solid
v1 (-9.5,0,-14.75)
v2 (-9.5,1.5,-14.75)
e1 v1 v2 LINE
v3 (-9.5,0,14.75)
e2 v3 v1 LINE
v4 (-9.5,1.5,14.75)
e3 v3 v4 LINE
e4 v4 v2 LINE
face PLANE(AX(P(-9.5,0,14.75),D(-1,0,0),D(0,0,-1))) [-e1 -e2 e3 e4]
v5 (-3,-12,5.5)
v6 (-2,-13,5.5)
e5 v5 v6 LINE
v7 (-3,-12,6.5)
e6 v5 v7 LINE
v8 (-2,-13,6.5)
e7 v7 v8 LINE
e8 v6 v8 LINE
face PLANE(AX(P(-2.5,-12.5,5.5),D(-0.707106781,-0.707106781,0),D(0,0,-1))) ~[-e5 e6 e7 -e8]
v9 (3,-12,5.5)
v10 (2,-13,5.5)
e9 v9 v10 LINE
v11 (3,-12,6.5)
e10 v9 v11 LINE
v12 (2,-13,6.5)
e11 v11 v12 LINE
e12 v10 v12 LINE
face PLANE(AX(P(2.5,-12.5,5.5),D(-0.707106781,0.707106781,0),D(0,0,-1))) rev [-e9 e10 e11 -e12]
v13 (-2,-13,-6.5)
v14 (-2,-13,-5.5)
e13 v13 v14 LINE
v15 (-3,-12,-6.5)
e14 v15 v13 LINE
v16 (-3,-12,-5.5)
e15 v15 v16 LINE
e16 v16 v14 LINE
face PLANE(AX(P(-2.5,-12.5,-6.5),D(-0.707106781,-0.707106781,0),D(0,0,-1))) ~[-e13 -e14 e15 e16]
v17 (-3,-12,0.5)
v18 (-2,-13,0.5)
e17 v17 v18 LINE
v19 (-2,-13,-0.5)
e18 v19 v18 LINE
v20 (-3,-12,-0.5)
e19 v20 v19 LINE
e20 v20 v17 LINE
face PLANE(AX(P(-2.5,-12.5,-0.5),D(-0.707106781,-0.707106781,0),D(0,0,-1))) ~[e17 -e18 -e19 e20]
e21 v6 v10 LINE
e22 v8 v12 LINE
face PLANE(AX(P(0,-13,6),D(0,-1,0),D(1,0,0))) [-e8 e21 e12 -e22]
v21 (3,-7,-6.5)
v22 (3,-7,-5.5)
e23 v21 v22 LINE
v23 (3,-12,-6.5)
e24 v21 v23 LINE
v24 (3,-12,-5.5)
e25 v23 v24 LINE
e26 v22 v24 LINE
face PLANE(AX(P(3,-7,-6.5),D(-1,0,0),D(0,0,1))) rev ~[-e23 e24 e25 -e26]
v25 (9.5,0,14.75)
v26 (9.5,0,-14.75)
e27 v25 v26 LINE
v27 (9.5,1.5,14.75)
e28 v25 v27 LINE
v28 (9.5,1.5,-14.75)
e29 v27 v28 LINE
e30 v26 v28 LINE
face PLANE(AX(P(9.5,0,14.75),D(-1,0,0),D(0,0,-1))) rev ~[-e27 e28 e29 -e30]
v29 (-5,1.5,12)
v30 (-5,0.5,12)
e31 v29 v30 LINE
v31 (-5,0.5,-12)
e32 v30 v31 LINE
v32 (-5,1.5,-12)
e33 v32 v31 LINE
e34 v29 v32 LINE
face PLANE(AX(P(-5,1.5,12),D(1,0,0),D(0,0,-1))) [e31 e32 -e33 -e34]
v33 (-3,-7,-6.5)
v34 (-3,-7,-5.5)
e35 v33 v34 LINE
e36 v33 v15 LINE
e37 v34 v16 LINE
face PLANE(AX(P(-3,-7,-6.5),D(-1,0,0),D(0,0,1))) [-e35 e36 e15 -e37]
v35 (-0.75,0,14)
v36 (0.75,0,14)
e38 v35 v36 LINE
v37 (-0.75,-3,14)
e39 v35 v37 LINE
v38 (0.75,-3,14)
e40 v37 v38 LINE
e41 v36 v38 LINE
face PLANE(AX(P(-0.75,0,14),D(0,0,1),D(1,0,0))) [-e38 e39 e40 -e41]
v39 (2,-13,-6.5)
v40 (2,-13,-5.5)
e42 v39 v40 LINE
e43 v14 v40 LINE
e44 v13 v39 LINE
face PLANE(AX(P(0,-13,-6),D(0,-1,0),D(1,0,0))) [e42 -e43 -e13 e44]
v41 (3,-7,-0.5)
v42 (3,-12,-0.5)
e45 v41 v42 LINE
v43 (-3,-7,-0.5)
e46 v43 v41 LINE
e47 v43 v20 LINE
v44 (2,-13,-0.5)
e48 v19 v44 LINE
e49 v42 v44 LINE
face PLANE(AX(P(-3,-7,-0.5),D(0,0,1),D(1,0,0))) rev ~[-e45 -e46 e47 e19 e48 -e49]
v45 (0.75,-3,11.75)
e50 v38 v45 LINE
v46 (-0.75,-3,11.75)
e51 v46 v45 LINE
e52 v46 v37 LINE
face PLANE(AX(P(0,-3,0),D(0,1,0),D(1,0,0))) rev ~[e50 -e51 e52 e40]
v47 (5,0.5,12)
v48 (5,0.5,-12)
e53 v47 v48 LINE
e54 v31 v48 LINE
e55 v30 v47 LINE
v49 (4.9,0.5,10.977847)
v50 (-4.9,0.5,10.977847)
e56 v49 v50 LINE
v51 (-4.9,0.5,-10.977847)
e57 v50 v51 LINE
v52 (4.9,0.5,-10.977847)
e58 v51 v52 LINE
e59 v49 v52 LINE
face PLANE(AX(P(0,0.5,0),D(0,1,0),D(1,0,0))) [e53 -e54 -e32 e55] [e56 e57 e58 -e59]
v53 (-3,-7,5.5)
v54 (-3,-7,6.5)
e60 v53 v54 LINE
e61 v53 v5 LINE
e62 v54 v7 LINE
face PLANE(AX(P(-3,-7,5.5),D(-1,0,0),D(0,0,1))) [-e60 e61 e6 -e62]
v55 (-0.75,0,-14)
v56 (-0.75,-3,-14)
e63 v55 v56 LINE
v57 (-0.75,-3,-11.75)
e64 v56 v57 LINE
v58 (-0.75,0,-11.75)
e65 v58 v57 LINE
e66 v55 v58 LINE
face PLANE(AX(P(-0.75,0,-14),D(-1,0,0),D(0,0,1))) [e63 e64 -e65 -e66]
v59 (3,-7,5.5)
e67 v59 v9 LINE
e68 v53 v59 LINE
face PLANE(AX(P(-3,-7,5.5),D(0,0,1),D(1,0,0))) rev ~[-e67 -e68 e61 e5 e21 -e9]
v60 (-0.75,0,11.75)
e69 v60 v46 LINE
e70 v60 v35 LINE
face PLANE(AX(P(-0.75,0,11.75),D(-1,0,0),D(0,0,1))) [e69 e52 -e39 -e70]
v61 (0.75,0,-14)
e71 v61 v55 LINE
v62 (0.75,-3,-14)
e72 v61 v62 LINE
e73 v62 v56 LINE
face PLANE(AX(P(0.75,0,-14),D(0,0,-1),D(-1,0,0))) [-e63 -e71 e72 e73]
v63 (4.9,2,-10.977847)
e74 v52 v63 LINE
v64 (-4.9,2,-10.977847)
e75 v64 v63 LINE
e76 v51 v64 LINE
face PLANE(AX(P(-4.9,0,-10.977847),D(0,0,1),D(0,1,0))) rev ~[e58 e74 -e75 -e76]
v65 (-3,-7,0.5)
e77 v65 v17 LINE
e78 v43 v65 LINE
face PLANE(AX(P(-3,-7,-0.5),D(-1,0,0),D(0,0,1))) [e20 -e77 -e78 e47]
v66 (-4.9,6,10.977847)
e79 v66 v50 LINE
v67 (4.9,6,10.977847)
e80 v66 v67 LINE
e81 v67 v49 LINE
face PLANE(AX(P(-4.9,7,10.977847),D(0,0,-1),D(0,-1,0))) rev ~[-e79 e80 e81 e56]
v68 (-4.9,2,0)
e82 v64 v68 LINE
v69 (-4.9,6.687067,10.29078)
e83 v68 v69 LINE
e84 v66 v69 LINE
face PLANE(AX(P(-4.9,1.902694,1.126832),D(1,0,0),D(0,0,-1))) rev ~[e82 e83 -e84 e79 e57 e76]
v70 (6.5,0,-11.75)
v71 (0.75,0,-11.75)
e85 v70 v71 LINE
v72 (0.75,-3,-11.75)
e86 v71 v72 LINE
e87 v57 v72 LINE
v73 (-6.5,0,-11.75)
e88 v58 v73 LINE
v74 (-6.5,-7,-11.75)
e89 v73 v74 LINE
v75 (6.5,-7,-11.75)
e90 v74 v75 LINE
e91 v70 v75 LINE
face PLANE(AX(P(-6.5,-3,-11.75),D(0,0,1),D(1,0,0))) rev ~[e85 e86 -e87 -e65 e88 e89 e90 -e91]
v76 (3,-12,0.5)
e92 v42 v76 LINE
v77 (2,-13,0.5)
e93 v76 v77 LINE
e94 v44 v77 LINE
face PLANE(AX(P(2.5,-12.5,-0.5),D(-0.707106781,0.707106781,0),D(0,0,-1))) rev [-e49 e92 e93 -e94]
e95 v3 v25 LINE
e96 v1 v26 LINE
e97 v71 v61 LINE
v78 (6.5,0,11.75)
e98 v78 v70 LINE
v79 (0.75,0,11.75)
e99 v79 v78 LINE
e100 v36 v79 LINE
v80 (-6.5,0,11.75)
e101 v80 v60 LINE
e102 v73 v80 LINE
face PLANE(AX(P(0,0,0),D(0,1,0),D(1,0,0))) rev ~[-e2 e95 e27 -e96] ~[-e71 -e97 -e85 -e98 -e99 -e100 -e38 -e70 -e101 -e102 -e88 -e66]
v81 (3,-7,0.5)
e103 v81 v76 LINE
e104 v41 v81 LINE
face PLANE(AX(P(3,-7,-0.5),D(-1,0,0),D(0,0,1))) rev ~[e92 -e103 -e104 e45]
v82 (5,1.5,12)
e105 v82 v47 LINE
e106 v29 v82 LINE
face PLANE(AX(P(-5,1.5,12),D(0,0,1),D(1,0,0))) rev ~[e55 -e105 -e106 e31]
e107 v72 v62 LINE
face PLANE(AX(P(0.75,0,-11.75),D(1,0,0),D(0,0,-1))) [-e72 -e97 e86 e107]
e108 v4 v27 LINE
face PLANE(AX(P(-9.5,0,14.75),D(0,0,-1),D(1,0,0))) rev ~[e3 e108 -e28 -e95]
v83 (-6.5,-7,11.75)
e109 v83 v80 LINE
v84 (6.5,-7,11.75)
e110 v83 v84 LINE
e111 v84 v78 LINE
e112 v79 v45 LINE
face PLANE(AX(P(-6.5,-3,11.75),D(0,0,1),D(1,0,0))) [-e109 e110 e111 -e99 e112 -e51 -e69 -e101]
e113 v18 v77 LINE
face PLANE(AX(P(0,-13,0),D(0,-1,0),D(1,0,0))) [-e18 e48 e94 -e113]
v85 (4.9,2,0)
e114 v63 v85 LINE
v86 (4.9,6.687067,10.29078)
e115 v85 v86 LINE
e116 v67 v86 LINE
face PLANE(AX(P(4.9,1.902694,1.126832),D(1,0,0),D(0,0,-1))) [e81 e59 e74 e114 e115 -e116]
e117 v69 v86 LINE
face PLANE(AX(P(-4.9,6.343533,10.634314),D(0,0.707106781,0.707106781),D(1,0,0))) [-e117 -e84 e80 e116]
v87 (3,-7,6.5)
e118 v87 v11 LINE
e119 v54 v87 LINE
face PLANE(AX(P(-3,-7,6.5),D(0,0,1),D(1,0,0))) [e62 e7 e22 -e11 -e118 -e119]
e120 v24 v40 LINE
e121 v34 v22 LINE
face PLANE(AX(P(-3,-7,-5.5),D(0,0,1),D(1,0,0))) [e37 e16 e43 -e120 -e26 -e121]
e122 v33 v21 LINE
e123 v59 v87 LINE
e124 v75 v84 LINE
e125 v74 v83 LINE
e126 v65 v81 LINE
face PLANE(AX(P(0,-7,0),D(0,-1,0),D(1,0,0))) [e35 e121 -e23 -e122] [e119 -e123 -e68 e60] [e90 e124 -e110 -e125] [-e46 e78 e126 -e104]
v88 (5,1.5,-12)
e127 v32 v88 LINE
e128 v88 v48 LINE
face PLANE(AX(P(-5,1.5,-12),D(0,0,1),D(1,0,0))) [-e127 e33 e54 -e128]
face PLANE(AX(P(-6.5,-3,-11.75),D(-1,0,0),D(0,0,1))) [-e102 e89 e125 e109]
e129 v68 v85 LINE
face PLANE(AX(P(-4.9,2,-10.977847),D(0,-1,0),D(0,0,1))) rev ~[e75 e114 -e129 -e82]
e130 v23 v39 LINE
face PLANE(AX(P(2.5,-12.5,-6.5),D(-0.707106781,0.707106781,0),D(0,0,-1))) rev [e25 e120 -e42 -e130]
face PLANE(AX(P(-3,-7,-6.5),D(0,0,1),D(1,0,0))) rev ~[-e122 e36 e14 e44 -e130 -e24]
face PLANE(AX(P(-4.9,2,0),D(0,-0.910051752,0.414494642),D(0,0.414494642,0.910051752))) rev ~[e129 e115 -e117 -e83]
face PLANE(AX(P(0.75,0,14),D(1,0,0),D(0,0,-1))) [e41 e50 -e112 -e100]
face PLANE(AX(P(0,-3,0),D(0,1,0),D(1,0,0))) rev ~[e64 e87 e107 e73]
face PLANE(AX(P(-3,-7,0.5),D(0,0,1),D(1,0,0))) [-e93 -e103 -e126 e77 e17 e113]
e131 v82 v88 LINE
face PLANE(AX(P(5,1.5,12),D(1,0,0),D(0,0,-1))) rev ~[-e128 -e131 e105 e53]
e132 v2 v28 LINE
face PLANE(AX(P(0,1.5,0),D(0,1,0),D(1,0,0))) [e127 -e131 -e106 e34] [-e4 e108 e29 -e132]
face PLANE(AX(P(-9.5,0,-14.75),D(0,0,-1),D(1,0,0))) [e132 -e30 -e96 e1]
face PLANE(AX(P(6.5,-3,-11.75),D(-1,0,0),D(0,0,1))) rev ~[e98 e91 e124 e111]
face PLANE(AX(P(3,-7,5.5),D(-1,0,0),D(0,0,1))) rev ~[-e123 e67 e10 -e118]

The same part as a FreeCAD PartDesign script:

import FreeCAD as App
import Part
import Sketcher
from FreeCAD import Vector


def edges_at(feature, points):
    """Names of the edges that pass closest to the given points."""
    edges = feature.Shape.Edges
    near = lambda p: min(range(len(edges)), key=lambda i: edges[i].distToShape(Part.Vertex(*p))[0])
    return sorted({f"Edge{near(p) + 1}" for p in points})


def add_polygon(sketch, points):
    """Adds a closed chain of lines whose ends are joined by coincident constraints."""
    first, n = sketch.GeometryCount, len(points)
    for a, b in zip(points, points[1:] + points[:1]):
        sketch.addGeometry(Part.LineSegment(App.Vector(*a, 0), App.Vector(*b, 0)), False)
    for i in range(n):
        sketch.addConstraint(Sketcher.Constraint("Coincident", first + i, 2, first + (i + 1) % n, 1))

doc = App.newDocument("Part")
params = doc.addObject("Spreadsheet::Sheet", "Params")
for row, (alias, value) in enumerate([
    ("sketch1_width", "1.5 mm"),
    ("sketch1_height", "23.5 mm"),
    ("pad1_length", "3 mm"),
    ("sketch2_width", "13 mm"),
    ("sketch2_height", "23.5 mm"),
    ("pad2_length", "4 mm"),
    ("sketch3_width", "6 mm"),
    ("sketch3_height", "1 mm"),
    ("pad3_length", "6 mm"),
    ("chamfer_size", "1 mm"),
    ("sketch4_width", "19 mm"),
    ("sketch4_height", "29.5 mm"),
    ("pad4_length", "1.5 mm"),
    ("sketch5_width", "10 mm"),
    ("sketch5_height", "24 mm"),
    ("pocket1_length", "1 mm"),
    ("sketch6_width", "2 mm"),
    ("sketch6_width2", "7 mm"),
    ("pad5_length", "4.9 mm"),
    ("pad5_length2", "4.9 mm"),
    ("chamfer2_size", "1 mm"),
    ("chamfer2_size2", "0.754975 mm"),
], start=1):
    params.set(f"A{row}", alias)
    params.set(f"B{row}", "=" + value)
    params.setAlias(f"B{row}", alias)

body = doc.addObject("PartDesign::Body", "Body")

# Sketch on XZ plane
sketch1 = body.newObject("Sketcher::SketchObject", "Sketch")
sketch1.AttachmentSupport = (doc.getObject("XZ_Plane"), [""])
sketch1.MapMode = "FlatFace"
add_polygon(sketch1, [(0.8, 11.8), (6.5, 11.8), (6.5, -11.8), (0.8, -11.8), (0.8, -14), (-0.8, -14), (-0.8, -11.8), (-6.5, -11.8), (-6.5, 11.8), (-0.8, 11.8), (-0.8, 14), (0.8, 14)])  # lines 0-11
sketch1.addConstraint(Sketcher.Constraint("Horizontal", 0))
sketch1.addConstraint(Sketcher.Constraint("Vertical", 1))
sketch1.addConstraint(Sketcher.Constraint("Horizontal", 2))
sketch1.addConstraint(Sketcher.Constraint("Vertical", 3))
sketch1.addConstraint(Sketcher.Constraint("Horizontal", 4))
sketch1.addConstraint(Sketcher.Constraint("Vertical", 5))
sketch1.addConstraint(Sketcher.Constraint("Horizontal", 6))
sketch1.addConstraint(Sketcher.Constraint("Vertical", 7))
sketch1.addConstraint(Sketcher.Constraint("Horizontal", 8))
sketch1.addConstraint(Sketcher.Constraint("Vertical", 9))
sketch1.addConstraint(Sketcher.Constraint("Horizontal", 10))
sketch1.addConstraint(Sketcher.Constraint("Vertical", 11))
sketch1.addConstraint(Sketcher.Constraint("Symmetric", 0, 2, 6, 2, -1, 1))
sketch1.addConstraint(Sketcher.Constraint("Symmetric", 2, 2, 8, 2, -1, 1))
sketch1.addConstraint(Sketcher.Constraint("Symmetric", 4, 2, 10, 2, -1, 1))
sketch1.addConstraint(Sketcher.Constraint("Symmetric", 2, 2, 5, 2, -2))
sketch1.addConstraint(Sketcher.Constraint("DistanceX", 4, 2, 4, 1, 1.5))
sketch1.addConstraint(Sketcher.Constraint("DistanceY", 1, 2, 1, 1, 23.5))
sketch1.addConstraint(Sketcher.Constraint("DistanceY", 3, 2, -1, 1, 14.0))
sketch1.addConstraint(Sketcher.Constraint("DistanceX", 6, 2, 1, 2, 13.0))
sketch1.setExpression("Constraints[28]", "Params.sketch1_width")
sketch1.setExpression("Constraints[29]", "Params.sketch1_height")
pad1 = body.newObject("PartDesign::Pad", "Pad")
pad1.Profile = sketch1
pad1.setExpression("Length", "Params.pad1_length")

# Sketch on XZ plane
sketch2 = body.newObject("Sketcher::SketchObject", "Sketch001")
sketch2.AttachmentSupport = (doc.getObject("XZ_Plane"), [""])
sketch2.MapMode = "FlatFace"
sketch2.AttachmentOffset = App.Placement(Vector(0, 0, 3), App.Rotation())
add_polygon(sketch2, [(-6, 12), (-6, -12), (6, -12), (6, 12)])  # lines 0-3
sketch2.addConstraint(Sketcher.Constraint("Vertical", 0))
sketch2.addConstraint(Sketcher.Constraint("Horizontal", 1))
sketch2.addConstraint(Sketcher.Constraint("Vertical", 2))
sketch2.addConstraint(Sketcher.Constraint("Horizontal", 3))
sketch2.addConstraint(Sketcher.Constraint("Symmetric", 0, 2, 2, 2, -1, 1))
sketch2.addConstraint(Sketcher.Constraint("DistanceX", 1, 1, 1, 2, 13.0))
sketch2.addConstraint(Sketcher.Constraint("DistanceY", 0, 2, 0, 1, 23.5))
sketch2.setExpression("Constraints[9]", "Params.sketch2_width")
sketch2.setExpression("Constraints[10]", "Params.sketch2_height")
pad2 = body.newObject("PartDesign::Pad", "Pad001")
pad2.Profile = sketch2
pad2.setExpression("Length", "Params.pad2_length")

# Sketch on XZ plane
sketch3 = body.newObject("Sketcher::SketchObject", "Sketch002")
sketch3.AttachmentSupport = (doc.getObject("XZ_Plane"), [""])
sketch3.MapMode = "FlatFace"
sketch3.AttachmentOffset = App.Placement(Vector(0, 0, 7), App.Rotation())
add_polygon(sketch3, [(-3, 0.5), (-3, -0.5), (3, -0.5), (3, 0.5)])  # lines 0-3
add_polygon(sketch3, [(-3, 6.5), (-3, 5.5), (3, 5.5), (3, 6.5)])  # lines 4-7
add_polygon(sketch3, [(-3, -5.5), (-3, -6.5), (3, -6.5), (3, -5.5)])  # lines 8-11
sketch3.addConstraint(Sketcher.Constraint("Vertical", 0))
sketch3.addConstraint(Sketcher.Constraint("Horizontal", 1))
sketch3.addConstraint(Sketcher.Constraint("Vertical", 2))
sketch3.addConstraint(Sketcher.Constraint("Horizontal", 3))
sketch3.addConstraint(Sketcher.Constraint("Vertical", 4))
sketch3.addConstraint(Sketcher.Constraint("Horizontal", 5))
sketch3.addConstraint(Sketcher.Constraint("Vertical", 6))
sketch3.addConstraint(Sketcher.Constraint("Horizontal", 7))
sketch3.addConstraint(Sketcher.Constraint("Vertical", 8))
sketch3.addConstraint(Sketcher.Constraint("Horizontal", 9))
sketch3.addConstraint(Sketcher.Constraint("Vertical", 10))
sketch3.addConstraint(Sketcher.Constraint("Horizontal", 11))
sketch3.addConstraint(Sketcher.Constraint("Symmetric", 0, 2, 2, 2, -1, 1))
sketch3.addConstraint(Sketcher.Constraint("Symmetric", 6, 2, 8, 2, -1, 1))
sketch3.addConstraint(Sketcher.Constraint("Symmetric", 4, 2, 10, 2, -1, 1))
sketch3.addConstraint(Sketcher.Constraint("Vertical", 3, 2, 4, 2))
sketch3.addConstraint(Sketcher.Constraint("Vertical", 2, 2, 5, 2))
sketch3.addConstraint(Sketcher.Constraint("Equal", 2, 4))
sketch3.addConstraint(Sketcher.Constraint("DistanceX", 1, 1, 1, 2, 6.0))
sketch3.addConstraint(Sketcher.Constraint("DistanceY", 0, 2, 0, 1, 1.0))
sketch3.addConstraint(Sketcher.Constraint("DistanceY", 3, 2, 4, 2, 5.0))
sketch3.setExpression("Constraints[30]", "Params.sketch3_width")
sketch3.setExpression("Constraints[31]", "Params.sketch3_height")
pad3 = body.newObject("PartDesign::Pad", "Pad002")
pad3.Profile = sketch3
pad3.setExpression("Length", "Params.pad3_length")
doc.recompute()

chamfer = body.newObject("PartDesign::Chamfer", "Chamfer")
chamfer.Base = (pad3, edges_at(pad3, [
    (-3, -13, 0),
    (3, -13, 0),
    (-3, -13, 6),
    (3, -13, 6),
    (3, -13, -6),
    (-3, -13, -6),
]))
chamfer.setExpression("Size", "Params.chamfer_size")

# Sketch on XZ plane
sketch4 = body.newObject("Sketcher::SketchObject", "Sketch003")
sketch4.AttachmentSupport = (doc.getObject("XZ_Plane"), [""])
sketch4.MapMode = "FlatFace"
add_polygon(sketch4, [(-10, -15), (-10, 15), (10, 15), (10, -15)])  # lines 0-3
sketch4.addConstraint(Sketcher.Constraint("Vertical", 0))
sketch4.addConstraint(Sketcher.Constraint("Horizontal", 1))
sketch4.addConstraint(Sketcher.Constraint("Vertical", 2))
sketch4.addConstraint(Sketcher.Constraint("Horizontal", 3))
sketch4.addConstraint(Sketcher.Constraint("Symmetric", 0, 2, 2, 2, -1, 1))
sketch4.addConstraint(Sketcher.Constraint("DistanceX", 1, 1, 1, 2, 19.0))
sketch4.addConstraint(Sketcher.Constraint("DistanceY", 0, 1, 0, 2, 29.5))
sketch4.setExpression("Constraints[9]", "Params.sketch4_width")
sketch4.setExpression("Constraints[10]", "Params.sketch4_height")
pad4 = body.newObject("PartDesign::Pad", "Pad003")
pad4.Profile = sketch4
pad4.setExpression("Length", "Params.pad4_length")
pad4.Reversed = True

# Sketch on XZ plane
sketch5 = body.newObject("Sketcher::SketchObject", "Sketch004")
sketch5.AttachmentSupport = (doc.getObject("XZ_Plane"), [""])
sketch5.MapMode = "FlatFace"
sketch5.AttachmentOffset = App.Placement(Vector(0, 0, -1.5), App.Rotation())
add_polygon(sketch5, [(-5, -12), (-5, 12), (5, 12), (5, -12)])  # lines 0-3
sketch5.addConstraint(Sketcher.Constraint("Vertical", 0))
sketch5.addConstraint(Sketcher.Constraint("Horizontal", 1))
sketch5.addConstraint(Sketcher.Constraint("Vertical", 2))
sketch5.addConstraint(Sketcher.Constraint("Horizontal", 3))
sketch5.addConstraint(Sketcher.Constraint("Symmetric", 0, 2, 2, 2, -1, 1))
sketch5.addConstraint(Sketcher.Constraint("DistanceX", 1, 1, 1, 2, 10.0))
sketch5.addConstraint(Sketcher.Constraint("DistanceY", 0, 1, 0, 2, 24.0))
sketch5.setExpression("Constraints[9]", "Params.sketch5_width")
sketch5.setExpression("Constraints[10]", "Params.sketch5_height")
pocket1 = body.newObject("PartDesign::Pocket", "Pocket")
pocket1.Profile = sketch5
pocket1.setExpression("Length", "Params.pocket1_length")
pocket1.Reversed = True

# Sketch on YZ plane
sketch6 = body.newObject("Sketcher::SketchObject", "Sketch005")
sketch6.AttachmentSupport = (doc.getObject("YZ_Plane"), [""])
sketch6.MapMode = "FlatFace"
add_polygon(sketch6, [(0, 11), (0, -11), (2, -11), (2, 0), (7, 11)])  # lines 0-4
sketch6.addConstraint(Sketcher.Constraint("Vertical", 0))
sketch6.addConstraint(Sketcher.Constraint("Horizontal", 1))
sketch6.addConstraint(Sketcher.Constraint("Vertical", 2))
sketch6.addConstraint(Sketcher.Constraint("Horizontal", 4))
sketch6.addConstraint(Sketcher.Constraint("Symmetric", 0, 2, 4, 2, -1, 1))
sketch6.addConstraint(Sketcher.Constraint("PointOnObject", 2, 2, -1))
sketch6.addConstraint(Sketcher.Constraint("DistanceX", 1, 1, 1, 2, 2.0))
sketch6.addConstraint(Sketcher.Constraint("DistanceX", 4, 2, 4, 1, 7.0))
sketch6.addConstraint(Sketcher.Constraint("DistanceY", 0, 2, 0, 1, 21.955694))
sketch6.setExpression("Constraints[11]", "Params.sketch6_width")
sketch6.setExpression("Constraints[12]", "Params.sketch6_width2")
pad5 = body.newObject("PartDesign::Pad", "Pad004")
pad5.Profile = sketch6
pad5.Type = "TwoLengths"
pad5.setExpression("Length", "Params.pad5_length")
pad5.setExpression("Length2", "Params.pad5_length2")
doc.recompute()

chamfer2 = body.newObject("PartDesign::Chamfer", "Chamfer001")
chamfer2.Base = (pad5, edges_at(pad5, [(0, 7, 10.978)]))
chamfer2.ChamferType = "Two distances"
chamfer2.setExpression("Size", "Params.chamfer2_size")
chamfer2.setExpression("Size2", "Params.chamfer2_size2")

doc.recompute()
